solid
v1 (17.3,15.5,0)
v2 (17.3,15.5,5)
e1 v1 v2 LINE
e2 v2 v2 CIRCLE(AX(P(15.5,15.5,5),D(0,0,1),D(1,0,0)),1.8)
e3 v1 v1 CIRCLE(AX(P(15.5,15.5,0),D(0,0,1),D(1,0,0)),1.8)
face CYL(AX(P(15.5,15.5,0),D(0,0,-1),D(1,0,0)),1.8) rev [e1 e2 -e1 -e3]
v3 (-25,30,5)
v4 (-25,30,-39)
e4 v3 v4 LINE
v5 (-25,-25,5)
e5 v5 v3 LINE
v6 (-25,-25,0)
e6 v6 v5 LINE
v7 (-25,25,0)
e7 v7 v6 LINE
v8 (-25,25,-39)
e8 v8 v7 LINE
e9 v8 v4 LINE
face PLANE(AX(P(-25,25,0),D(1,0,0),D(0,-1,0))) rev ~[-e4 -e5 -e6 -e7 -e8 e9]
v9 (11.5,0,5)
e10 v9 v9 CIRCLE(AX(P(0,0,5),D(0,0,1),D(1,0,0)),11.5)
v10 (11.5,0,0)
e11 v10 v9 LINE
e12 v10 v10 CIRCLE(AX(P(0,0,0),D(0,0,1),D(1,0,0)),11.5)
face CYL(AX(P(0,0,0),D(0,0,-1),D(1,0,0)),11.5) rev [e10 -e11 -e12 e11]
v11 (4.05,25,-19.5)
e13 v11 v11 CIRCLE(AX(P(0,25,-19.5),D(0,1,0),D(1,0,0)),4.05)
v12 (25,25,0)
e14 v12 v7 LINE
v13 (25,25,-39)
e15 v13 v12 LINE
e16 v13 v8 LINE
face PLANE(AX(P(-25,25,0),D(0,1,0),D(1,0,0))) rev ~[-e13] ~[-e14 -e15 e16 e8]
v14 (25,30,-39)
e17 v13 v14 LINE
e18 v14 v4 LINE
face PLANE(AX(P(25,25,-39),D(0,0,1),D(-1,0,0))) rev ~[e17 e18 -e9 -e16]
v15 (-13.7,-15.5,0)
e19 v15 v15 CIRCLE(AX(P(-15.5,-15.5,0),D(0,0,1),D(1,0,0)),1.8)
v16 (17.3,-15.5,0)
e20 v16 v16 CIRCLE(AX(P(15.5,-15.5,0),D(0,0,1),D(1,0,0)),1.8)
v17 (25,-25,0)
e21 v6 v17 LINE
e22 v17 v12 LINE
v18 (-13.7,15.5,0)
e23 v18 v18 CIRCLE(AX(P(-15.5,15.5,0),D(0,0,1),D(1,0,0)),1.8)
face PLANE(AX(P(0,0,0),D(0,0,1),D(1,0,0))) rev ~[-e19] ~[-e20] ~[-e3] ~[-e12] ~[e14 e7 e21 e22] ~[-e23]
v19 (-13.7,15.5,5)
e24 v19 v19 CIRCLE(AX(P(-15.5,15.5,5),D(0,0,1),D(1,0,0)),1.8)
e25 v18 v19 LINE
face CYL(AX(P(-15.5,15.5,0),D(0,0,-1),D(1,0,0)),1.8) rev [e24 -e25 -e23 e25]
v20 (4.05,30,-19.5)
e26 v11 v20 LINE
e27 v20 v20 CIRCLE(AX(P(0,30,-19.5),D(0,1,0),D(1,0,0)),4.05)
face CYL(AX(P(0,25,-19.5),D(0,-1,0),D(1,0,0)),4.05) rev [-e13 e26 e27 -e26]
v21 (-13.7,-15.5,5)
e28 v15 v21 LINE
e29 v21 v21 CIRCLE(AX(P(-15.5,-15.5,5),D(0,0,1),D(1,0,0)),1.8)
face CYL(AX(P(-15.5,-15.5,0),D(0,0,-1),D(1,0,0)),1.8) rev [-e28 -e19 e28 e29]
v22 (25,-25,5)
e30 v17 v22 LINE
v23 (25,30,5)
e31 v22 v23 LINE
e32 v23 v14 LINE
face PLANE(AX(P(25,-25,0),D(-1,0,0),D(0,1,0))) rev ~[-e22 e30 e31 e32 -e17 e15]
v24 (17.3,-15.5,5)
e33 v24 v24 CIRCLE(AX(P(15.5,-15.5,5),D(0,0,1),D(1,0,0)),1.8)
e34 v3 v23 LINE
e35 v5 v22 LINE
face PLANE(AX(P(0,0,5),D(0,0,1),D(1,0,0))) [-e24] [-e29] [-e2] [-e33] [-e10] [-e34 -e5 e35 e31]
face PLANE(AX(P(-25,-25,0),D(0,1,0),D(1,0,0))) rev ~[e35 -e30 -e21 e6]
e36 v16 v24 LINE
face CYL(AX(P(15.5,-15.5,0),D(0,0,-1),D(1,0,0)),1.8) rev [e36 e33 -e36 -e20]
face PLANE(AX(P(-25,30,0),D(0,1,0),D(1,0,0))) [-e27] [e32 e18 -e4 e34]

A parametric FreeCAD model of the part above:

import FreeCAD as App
import Part
import Sketcher

V = App.Vector

doc = App.newDocument("Part")
body = doc.addObject("PartDesign::Body", "Body")

# Sketch on XY plane
sketch1 = doc.addObject("Sketcher::SketchObject", "Sketch")
body.addObject(sketch1)
sketch1.AttachmentSupport = (doc.XY_Plane, [""])
sketch1.MapMode = "FlatFace"
sketch1.addGeometry(Part.LineSegment(V(-25, 25, 0), V(-25, -25, 0)), False)
sketch1.addGeometry(Part.LineSegment(V(-25, -25, 0), V(25, -25, 0)), False)
sketch1.addGeometry(Part.LineSegment(V(25, -25, 0), V(25, 25, 0)), False)
sketch1.addGeometry(Part.LineSegment(V(25, 25, 0), V(-25, 25, 0)), False)
sketch1.addGeometry(Part.Circle(V(-15.5, -15.5, 0), V(0, 0, 1), 1.8), False)
sketch1.addGeometry(Part.Circle(V(15.5, -15.5, 0), V(0, 0, 1), 1.8), False)
sketch1.addGeometry(Part.Circle(V(-15.5, 15.5, 0), V(0, 0, 1), 1.8), False)
sketch1.addGeometry(Part.Circle(V(0, 0, 0), V(0, 0, 1), 11.5), False)
sketch1.addGeometry(Part.Circle(V(15.5, 15.5, 0), V(0, 0, 1), 1.8), False)
sketch1.addConstraint(Sketcher.Constraint("Coincident", 0, 2, 1, 1))
sketch1.addConstraint(Sketcher.Constraint("Coincident", 1, 2, 2, 1))
sketch1.addConstraint(Sketcher.Constraint("Coincident", 2, 2, 3, 1))
sketch1.addConstraint(Sketcher.Constraint("Coincident", 3, 2, 0, 1))
sketch1.addConstraint(Sketcher.Constraint("Vertical", 0))
sketch1.addConstraint(Sketcher.Constraint("Horizontal", 1))
sketch1.addConstraint(Sketcher.Constraint("Vertical", 2))
sketch1.addConstraint(Sketcher.Constraint("Horizontal", 3))
sketch1.addConstraint(Sketcher.Constraint("Coincident", 7, 3, -1, 1))
sketch1.addConstraint(Sketcher.Constraint("Equal", 4, 5))
sketch1.addConstraint(Sketcher.Constraint("Equal", 5, 6))
sketch1.addConstraint(Sketcher.Constraint("Equal", 6, 8))
sketch1.addConstraint(Sketcher.Constraint("Symmetric", 5, 3, 6, 3, -1, 1))
sketch1.addConstraint(Sketcher.Constraint("Symmetric", 4, 3, 8, 3, -1, 1))
sketch1.addConstraint(Sketcher.Constraint("Symmetric", 0, 2, 2, 2, -1, 1))
sketch1.addConstraint(Sketcher.Constraint("Symmetric", 4, 3, 5, 3, -2))
sketch1.addConstraint(Sketcher.Constraint("Equal", 3, 0))
sketch1.addConstraint(Sketcher.Constraint("Diameter", 7, 23.0))
sketch1.addConstraint(Sketcher.Constraint("Diameter", 4, 3.6))
sketch1.addConstraint(Sketcher.Constraint("DistanceX", 1, 1, 1, 2, 50.0))
sketch1.addConstraint(Sketcher.Constraint("DistanceX", 0, 2, 4, 3, 9.5))
sketch1.addConstraint(Sketcher.Constraint("DistanceY", 0, 2, 4, 3, 9.5))
pad1 = doc.addObject("PartDesign::Pad", "Pad")
body.addObject(pad1)
pad1.Profile = sketch1
pad1.Length = 5

# Sketch on XZ plane
sketch2 = doc.addObject("Sketcher::SketchObject", "Sketch001")
body.addObject(sketch2)
sketch2.AttachmentSupport = (doc.XZ_Plane, [""])
sketch2.MapMode = "FlatFace"
sketch2.AttachmentOffset = App.Placement(V(0, 0, -25), App.Rotation())
sketch2.addGeometry(Part.LineSegment(V(-25, -39, 0), V(-25, 5, 0)), False)
sketch2.addGeometry(Part.LineSegment(V(-25, 5, 0), V(25, 5, 0)), False)
sketch2.addGeometry(Part.LineSegment(V(25, 5, 0), V(25, -39, 0)), False)
sketch2.addGeometry(Part.LineSegment(V(25, -39, 0), V(-25, -39, 0)), False)
sketch2.addGeometry(Part.Circle(V(0, -19.5, 0), V(0, 0, 1), 4), False)
sketch2.addConstraint(Sketcher.Constraint("Coincident", 0, 2, 1, 1))
sketch2.addConstraint(Sketcher.Constraint("Coincident", 1, 2, 2, 1))
sketch2.addConstraint(Sketcher.Constraint("Coincident", 2, 2, 3, 1))
sketch2.addConstraint(Sketcher.Constraint("Coincident", 3, 2, 0, 1))
sketch2.addConstraint(Sketcher.Constraint("Vertical", 0))
sketch2.addConstraint(Sketcher.Constraint("Horizontal", 1))
sketch2.addConstraint(Sketcher.Constraint("Vertical", 2))
sketch2.addConstraint(Sketcher.Constraint("Horizontal", 3))
sketch2.addConstraint(Sketcher.Constraint("PointOnObject", 4, 3, -2))
sketch2.addConstraint(Sketcher.Constraint("Diameter", 4, 8.1))
sketch2.addConstraint(Sketcher.Constraint("DistanceX", 1, 1, 1, 2, 50.0))
sketch2.addConstraint(Sketcher.Constraint("DistanceY", 2, 2, -1, 1, 39.0))
sketch2.addConstraint(Sketcher.Constraint("DistanceY", 0, 1, 0, 2, 44.0))
sketch2.addConstraint(Sketcher.Constraint("DistanceX", 0, 2, -1, 1, 25.0))
sketch2.addConstraint(Sketcher.Constraint("DistanceY", 4, 3, -1, 1, 19.5))
pad2 = doc.addObject("PartDesign::Pad", "Pad001")
body.addObject(pad2)
pad2.Profile = sketch2
pad2.Length = 5
pad2.Reversed = True

doc.recompute()
